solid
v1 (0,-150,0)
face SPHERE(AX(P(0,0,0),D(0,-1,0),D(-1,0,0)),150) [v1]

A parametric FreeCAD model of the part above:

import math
import FreeCAD as App
import Part
import Sketcher

doc = App.newDocument("Part")
params = doc.addObject("Spreadsheet::Sheet", "Params")
for row, (alias, value) in enumerate([
    ("sketch1_radius", "150 mm"),
    ("revolution_angle", "360 deg"),
], start=1):
    params.set(f"A{row}", alias)
    params.set(f"B{row}", "=" + value)
    params.setAlias(f"B{row}", alias)

body = doc.addObject("PartDesign::Body", "Body")

# Sketch on XY plane
sketch1 = body.newObject("Sketcher::SketchObject", "Sketch")
sketch1.AttachmentSupport = (doc.getObject("XY_Plane"), [""])
sketch1.MapMode = "FlatFace"
sketch1.addGeometry([
    Part.LineSegment(App.Vector(0, -150, 0), App.Vector(0, 150, 0)),
    Part.ArcOfCircle(Part.Circle(App.Vector(0, 0, 0), App.Vector(0, 0, 1), 150), math.radians(90), math.radians(270)),
], False)
sketch1.addConstraint([
    Sketcher.Constraint("Coincident", 0, 1, 1, 2),
    Sketcher.Constraint("Coincident", 1, 1, 0, 2),
    Sketcher.Constraint("Vertical", 0),
    Sketcher.Constraint("Coincident", 1, 3, -1, 1),
    Sketcher.Constraint("PointOnObject", 0, 1, -2),
    Sketcher.Constraint("Radius", 1, 150.0),
])
sketch1.setExpression("Constraints[5]", "Params.sketch1_radius")
revolution = body.newObject("PartDesign::Revolution", "Revolution")
revolution.Profile = sketch1
revolution.ReferenceAxis = (sketch1, ["V_Axis"])
revolution.setExpression("Angle", "Params.revolution_angle")

doc.recompute()
